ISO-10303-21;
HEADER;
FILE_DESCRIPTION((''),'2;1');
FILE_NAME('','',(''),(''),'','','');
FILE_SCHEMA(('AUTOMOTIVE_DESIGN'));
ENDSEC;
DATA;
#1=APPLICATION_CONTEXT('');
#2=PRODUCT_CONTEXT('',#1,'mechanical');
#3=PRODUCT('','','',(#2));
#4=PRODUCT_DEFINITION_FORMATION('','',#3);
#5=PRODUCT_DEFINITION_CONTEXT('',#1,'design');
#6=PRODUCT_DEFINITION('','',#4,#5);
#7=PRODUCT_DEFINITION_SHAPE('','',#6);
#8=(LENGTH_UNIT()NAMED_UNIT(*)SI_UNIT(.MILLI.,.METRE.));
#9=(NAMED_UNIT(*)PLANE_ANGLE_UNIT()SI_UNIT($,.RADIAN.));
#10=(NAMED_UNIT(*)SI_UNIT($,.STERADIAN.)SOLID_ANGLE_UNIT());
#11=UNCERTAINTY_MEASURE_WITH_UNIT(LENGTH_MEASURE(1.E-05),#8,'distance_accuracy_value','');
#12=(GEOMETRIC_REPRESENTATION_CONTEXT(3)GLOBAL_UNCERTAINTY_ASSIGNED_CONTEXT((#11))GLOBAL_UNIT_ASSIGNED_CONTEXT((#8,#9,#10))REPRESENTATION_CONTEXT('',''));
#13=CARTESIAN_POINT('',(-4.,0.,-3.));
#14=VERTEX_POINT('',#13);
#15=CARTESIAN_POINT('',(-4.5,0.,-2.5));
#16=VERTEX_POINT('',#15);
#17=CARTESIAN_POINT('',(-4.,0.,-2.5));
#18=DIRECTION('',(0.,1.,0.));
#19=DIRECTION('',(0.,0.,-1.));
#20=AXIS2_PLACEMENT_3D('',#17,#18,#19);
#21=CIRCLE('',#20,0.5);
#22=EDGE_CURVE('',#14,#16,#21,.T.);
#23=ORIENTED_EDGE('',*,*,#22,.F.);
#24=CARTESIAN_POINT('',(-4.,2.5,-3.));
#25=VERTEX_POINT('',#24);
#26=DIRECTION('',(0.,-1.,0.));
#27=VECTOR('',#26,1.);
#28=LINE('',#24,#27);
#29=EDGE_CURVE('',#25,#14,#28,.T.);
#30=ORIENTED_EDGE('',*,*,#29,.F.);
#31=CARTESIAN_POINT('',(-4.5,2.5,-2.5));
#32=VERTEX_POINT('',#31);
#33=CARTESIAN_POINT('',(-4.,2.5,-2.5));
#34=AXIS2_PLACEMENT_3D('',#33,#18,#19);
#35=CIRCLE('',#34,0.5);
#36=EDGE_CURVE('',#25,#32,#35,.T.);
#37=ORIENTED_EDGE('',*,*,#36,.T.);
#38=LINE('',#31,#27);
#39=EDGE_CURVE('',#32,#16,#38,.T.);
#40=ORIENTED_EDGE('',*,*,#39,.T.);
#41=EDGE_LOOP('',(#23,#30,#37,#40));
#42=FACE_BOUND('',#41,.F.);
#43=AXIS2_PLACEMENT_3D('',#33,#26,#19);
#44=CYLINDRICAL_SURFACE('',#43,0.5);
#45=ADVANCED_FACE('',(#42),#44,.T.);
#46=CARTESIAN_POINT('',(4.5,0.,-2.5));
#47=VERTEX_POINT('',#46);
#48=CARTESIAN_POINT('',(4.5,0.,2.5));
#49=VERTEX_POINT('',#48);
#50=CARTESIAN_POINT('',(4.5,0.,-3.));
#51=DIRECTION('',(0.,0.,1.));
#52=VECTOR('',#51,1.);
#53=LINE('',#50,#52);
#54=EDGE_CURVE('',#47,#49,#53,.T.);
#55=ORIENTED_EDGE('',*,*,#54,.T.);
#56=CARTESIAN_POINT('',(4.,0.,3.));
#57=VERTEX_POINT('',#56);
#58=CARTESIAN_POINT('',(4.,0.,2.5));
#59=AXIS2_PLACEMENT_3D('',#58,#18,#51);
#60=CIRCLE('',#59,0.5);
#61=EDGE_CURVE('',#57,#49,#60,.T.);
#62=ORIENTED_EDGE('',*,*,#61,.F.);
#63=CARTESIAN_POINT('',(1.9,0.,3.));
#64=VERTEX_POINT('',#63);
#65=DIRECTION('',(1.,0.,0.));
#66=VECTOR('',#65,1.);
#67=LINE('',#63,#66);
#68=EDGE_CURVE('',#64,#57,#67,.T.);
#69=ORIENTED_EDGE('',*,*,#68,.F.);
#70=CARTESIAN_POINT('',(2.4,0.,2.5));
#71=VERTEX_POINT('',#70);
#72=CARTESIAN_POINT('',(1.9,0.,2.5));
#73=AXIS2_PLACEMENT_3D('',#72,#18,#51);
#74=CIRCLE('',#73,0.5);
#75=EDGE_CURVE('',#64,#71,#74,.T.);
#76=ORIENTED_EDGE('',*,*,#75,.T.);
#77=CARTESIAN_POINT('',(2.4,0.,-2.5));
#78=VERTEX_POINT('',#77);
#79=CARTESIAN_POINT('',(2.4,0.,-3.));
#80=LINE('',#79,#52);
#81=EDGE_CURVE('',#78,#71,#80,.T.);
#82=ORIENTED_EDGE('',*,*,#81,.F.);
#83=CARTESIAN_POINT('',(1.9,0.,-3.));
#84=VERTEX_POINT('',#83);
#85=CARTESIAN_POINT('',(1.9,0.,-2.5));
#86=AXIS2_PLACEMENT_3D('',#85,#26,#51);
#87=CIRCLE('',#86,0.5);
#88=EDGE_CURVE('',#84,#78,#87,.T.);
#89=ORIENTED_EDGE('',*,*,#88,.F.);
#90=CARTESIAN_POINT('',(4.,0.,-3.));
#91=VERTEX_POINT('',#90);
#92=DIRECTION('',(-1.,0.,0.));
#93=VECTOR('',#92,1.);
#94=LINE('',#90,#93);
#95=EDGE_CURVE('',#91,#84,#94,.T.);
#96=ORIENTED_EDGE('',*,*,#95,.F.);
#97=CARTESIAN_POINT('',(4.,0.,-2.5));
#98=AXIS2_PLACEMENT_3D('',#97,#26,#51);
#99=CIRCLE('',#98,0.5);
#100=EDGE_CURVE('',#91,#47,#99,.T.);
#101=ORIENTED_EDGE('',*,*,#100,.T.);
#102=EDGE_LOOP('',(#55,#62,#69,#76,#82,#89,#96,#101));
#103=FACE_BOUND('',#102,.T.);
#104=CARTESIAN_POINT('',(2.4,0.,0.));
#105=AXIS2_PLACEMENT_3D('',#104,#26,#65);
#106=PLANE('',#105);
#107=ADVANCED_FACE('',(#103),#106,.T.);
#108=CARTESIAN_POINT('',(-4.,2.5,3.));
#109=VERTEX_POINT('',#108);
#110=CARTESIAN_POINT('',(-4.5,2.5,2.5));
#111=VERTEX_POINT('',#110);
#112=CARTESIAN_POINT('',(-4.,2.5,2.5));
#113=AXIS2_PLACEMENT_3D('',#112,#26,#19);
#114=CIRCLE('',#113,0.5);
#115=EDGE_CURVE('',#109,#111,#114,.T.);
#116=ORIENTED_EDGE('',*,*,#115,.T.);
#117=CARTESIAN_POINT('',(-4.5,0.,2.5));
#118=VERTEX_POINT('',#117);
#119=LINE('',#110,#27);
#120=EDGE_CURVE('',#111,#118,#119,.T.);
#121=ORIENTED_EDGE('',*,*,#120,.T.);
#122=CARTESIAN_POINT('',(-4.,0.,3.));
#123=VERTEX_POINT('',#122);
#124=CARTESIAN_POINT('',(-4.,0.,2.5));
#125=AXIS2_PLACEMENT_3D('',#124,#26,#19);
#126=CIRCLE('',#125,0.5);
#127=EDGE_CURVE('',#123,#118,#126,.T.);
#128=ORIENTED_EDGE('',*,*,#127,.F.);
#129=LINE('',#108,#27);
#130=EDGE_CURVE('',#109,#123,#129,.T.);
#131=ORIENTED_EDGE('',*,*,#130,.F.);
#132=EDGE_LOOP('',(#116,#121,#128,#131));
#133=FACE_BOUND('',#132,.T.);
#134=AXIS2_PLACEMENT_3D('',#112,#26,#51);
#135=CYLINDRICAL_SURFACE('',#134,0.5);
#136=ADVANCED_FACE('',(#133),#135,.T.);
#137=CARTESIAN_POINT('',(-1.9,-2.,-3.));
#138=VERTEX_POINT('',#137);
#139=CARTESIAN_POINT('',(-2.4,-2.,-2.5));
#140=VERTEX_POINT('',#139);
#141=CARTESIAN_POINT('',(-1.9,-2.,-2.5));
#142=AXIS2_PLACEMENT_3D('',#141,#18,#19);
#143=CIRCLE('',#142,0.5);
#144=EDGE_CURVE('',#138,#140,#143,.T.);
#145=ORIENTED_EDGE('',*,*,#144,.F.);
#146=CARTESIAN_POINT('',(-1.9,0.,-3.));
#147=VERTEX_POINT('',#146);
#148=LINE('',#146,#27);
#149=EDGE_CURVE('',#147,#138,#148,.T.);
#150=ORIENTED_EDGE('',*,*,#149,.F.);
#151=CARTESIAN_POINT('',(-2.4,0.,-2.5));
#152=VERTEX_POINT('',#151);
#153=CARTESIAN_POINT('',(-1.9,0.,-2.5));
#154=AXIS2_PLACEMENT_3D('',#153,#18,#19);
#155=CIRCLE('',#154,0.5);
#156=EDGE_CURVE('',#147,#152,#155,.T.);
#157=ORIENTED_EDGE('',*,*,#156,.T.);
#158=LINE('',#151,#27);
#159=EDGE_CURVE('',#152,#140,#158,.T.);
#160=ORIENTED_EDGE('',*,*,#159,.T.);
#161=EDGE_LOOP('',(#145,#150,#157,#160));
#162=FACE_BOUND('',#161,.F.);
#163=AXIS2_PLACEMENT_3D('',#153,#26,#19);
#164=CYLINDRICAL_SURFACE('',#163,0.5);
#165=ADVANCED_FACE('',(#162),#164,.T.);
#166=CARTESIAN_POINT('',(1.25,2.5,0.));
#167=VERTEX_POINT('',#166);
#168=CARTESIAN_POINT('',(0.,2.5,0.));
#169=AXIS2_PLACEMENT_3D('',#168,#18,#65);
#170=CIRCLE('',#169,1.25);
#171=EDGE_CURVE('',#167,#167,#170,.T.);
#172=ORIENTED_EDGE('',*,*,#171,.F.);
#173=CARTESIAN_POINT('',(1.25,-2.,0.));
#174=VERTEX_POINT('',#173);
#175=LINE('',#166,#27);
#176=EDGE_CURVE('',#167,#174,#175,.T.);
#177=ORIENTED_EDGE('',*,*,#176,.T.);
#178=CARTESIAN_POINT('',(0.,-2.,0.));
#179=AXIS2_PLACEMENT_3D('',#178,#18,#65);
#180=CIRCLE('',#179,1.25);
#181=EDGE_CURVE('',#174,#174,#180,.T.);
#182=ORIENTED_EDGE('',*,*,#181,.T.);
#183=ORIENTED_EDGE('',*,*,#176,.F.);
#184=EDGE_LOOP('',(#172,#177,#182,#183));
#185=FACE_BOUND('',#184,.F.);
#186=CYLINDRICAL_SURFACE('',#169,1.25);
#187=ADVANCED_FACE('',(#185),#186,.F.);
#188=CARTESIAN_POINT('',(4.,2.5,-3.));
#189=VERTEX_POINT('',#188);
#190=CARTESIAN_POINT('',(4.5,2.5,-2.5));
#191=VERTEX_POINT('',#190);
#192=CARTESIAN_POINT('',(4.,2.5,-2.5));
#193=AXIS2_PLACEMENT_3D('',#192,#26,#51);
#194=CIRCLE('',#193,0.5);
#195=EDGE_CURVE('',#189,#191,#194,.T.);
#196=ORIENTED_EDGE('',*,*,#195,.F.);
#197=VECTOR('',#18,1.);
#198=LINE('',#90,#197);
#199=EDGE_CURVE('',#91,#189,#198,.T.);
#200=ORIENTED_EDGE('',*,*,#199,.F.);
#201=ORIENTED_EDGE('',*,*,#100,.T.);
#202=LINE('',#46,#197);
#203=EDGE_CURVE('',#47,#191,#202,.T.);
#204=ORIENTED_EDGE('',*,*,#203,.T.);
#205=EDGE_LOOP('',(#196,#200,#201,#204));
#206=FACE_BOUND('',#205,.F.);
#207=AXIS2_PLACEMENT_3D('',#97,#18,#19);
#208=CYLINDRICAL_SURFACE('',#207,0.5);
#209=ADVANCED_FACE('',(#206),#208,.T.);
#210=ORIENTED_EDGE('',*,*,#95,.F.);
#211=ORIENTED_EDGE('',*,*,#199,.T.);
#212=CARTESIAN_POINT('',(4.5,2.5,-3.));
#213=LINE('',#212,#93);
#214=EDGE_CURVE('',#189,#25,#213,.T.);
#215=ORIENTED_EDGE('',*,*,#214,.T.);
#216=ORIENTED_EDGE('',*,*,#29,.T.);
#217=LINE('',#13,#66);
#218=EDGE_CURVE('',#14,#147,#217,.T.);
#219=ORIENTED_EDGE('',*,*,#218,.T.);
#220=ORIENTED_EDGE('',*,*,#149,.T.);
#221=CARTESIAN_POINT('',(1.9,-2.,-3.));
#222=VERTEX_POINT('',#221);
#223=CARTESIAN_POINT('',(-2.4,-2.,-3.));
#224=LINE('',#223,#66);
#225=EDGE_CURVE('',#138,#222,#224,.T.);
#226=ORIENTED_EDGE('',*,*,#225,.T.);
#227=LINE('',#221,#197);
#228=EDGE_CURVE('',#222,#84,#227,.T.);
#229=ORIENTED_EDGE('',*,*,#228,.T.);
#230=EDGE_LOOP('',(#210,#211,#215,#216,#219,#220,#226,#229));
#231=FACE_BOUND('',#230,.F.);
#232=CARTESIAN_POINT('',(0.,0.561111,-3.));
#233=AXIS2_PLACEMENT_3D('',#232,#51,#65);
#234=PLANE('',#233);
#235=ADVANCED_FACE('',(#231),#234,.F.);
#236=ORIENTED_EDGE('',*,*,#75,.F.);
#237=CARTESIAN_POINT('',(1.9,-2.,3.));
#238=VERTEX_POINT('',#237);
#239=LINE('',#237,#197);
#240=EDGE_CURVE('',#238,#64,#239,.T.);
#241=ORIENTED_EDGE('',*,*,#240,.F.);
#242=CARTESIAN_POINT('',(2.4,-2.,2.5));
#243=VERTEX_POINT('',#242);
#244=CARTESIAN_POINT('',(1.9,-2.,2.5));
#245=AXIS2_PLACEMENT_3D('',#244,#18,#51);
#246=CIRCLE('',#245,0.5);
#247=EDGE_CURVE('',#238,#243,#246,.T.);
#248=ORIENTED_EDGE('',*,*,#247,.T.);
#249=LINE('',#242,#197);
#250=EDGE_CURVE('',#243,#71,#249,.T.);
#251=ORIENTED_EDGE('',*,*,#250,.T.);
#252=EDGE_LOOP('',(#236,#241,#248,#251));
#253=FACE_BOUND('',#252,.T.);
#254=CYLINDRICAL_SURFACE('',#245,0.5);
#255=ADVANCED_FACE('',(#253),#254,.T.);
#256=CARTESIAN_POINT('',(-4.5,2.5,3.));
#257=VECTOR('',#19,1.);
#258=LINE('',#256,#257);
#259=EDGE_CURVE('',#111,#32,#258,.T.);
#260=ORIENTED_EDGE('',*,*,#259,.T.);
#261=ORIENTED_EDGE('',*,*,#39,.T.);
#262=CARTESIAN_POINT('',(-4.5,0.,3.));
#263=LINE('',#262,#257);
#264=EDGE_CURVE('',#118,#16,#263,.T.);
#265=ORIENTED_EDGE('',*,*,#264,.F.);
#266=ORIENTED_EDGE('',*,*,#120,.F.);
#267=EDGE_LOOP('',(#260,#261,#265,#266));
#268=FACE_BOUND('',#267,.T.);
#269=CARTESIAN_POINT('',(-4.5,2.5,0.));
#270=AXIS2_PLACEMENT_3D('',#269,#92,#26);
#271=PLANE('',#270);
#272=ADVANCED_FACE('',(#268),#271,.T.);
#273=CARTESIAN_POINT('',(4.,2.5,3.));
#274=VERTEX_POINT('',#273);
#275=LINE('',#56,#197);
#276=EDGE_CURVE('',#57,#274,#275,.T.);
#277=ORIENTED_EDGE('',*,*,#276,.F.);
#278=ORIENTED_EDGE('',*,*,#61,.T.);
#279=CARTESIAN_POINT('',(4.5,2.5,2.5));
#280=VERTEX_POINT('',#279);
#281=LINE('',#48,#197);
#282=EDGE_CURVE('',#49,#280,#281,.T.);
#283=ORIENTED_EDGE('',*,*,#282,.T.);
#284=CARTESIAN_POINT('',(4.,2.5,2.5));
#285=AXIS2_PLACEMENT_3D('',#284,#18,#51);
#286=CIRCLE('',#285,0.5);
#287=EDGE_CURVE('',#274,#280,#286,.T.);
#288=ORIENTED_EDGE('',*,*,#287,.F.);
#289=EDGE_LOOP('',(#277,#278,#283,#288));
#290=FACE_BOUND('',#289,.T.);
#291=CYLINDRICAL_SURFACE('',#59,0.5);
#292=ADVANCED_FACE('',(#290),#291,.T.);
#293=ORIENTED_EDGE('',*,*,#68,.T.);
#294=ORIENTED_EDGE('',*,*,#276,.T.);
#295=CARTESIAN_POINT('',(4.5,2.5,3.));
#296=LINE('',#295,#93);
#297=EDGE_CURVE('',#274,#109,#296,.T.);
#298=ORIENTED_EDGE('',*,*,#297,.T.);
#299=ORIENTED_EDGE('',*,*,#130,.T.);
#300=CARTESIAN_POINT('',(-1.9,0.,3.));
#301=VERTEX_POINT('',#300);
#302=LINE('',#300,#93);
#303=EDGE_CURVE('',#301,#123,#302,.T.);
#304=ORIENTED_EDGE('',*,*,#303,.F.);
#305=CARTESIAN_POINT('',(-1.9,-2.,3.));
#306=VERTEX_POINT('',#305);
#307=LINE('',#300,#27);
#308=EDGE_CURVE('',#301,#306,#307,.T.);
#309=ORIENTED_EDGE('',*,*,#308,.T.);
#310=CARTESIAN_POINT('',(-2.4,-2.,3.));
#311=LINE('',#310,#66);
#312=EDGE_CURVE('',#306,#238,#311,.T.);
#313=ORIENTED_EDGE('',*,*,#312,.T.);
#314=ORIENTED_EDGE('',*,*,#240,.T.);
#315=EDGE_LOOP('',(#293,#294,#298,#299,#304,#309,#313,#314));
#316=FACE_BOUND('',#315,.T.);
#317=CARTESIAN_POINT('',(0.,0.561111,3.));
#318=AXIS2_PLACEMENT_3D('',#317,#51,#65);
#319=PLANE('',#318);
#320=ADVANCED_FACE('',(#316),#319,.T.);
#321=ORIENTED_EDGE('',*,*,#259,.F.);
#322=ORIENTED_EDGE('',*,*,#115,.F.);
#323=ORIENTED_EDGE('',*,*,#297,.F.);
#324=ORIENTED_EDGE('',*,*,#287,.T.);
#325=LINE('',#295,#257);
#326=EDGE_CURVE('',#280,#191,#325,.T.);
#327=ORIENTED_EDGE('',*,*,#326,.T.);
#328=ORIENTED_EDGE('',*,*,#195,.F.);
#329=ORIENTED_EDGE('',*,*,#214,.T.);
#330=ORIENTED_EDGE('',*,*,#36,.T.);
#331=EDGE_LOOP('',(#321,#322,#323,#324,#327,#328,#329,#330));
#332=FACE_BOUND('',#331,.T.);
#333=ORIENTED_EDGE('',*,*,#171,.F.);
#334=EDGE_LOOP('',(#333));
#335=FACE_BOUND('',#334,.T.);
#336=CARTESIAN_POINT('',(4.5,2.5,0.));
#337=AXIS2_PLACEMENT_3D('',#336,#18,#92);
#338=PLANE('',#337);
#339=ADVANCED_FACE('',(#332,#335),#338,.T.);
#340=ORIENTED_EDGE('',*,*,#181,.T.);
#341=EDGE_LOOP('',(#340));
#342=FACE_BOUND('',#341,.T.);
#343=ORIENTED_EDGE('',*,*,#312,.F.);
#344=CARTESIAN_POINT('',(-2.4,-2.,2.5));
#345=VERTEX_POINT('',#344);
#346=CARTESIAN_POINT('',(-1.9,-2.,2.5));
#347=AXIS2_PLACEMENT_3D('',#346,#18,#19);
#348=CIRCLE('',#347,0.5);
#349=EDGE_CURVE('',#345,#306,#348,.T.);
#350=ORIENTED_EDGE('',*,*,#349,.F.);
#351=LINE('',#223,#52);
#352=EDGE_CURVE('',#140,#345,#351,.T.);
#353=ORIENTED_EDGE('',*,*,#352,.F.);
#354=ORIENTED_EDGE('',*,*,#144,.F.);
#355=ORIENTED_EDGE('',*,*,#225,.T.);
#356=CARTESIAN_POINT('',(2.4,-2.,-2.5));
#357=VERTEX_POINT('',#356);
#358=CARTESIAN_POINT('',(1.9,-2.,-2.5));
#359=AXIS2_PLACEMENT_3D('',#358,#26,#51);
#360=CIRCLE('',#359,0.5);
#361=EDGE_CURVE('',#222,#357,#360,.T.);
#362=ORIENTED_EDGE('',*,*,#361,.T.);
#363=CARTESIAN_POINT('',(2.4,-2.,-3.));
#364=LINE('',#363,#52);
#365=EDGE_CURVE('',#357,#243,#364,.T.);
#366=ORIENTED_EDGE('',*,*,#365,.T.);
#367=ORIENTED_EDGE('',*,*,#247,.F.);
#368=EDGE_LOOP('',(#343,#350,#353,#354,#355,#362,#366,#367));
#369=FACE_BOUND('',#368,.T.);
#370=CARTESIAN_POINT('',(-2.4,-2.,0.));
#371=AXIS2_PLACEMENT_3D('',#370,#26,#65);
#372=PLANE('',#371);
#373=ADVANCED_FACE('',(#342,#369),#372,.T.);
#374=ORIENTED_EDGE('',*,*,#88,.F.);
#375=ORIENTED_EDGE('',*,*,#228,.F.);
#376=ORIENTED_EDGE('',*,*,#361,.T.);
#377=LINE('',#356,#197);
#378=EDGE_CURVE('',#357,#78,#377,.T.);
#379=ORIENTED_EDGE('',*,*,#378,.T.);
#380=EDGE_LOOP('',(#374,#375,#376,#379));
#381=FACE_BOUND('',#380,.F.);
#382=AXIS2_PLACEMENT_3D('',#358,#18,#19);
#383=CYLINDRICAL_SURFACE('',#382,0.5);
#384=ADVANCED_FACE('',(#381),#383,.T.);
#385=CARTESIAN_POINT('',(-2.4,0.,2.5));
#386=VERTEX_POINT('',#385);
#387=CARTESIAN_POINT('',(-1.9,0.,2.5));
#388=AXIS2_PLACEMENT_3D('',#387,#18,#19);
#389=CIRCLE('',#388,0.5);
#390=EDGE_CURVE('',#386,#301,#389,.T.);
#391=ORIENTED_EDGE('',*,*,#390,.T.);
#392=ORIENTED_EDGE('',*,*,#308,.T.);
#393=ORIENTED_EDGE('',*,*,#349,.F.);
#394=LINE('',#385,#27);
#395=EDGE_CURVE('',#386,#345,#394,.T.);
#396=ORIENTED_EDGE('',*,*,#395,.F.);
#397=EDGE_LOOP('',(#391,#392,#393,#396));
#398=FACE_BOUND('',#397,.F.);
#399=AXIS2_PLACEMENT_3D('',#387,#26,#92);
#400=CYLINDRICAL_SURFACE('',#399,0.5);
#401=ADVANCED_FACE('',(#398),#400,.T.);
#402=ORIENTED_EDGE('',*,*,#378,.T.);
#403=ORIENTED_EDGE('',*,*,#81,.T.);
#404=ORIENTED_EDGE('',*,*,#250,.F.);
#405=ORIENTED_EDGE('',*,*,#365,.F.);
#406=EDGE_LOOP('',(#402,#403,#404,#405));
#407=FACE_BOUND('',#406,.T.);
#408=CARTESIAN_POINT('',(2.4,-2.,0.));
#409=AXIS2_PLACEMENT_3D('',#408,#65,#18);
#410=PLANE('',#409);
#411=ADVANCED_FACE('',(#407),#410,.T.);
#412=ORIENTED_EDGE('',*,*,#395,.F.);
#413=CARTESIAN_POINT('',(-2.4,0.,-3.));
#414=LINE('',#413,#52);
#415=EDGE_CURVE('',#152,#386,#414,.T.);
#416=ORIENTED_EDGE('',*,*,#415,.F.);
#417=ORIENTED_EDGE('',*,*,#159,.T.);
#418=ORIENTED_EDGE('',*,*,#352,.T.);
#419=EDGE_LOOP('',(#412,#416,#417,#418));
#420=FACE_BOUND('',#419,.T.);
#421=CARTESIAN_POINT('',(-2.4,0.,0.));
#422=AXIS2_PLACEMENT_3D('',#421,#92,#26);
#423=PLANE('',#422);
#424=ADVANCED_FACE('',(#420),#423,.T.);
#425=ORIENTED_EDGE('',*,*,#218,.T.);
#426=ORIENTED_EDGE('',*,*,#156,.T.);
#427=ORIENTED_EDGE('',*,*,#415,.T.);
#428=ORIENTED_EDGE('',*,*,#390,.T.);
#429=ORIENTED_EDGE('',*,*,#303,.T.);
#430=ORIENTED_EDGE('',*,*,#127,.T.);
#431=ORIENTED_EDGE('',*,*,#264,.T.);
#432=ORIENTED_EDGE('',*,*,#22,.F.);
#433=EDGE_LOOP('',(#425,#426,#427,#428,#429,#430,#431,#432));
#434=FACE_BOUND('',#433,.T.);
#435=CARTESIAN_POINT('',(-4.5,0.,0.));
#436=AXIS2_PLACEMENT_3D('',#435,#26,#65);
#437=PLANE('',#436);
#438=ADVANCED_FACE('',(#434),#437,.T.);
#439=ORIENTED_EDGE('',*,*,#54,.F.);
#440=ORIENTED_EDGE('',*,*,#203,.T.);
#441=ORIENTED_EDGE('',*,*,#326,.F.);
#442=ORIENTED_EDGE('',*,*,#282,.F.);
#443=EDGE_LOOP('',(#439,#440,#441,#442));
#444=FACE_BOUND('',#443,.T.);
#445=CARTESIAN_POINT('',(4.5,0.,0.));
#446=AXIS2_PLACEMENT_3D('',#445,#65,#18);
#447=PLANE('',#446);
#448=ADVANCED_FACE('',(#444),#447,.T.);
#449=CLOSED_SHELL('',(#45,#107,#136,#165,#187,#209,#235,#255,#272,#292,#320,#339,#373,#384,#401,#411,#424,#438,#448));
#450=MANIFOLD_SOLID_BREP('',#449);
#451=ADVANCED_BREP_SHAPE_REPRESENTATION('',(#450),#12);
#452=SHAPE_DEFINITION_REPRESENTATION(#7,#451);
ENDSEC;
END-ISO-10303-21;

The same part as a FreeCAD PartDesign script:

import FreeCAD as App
import Part
import Sketcher
Q = App.Units.Quantity


def edges_at(feature, points):
    """Names of the edges that pass closest to the given points."""
    edges = feature.Shape.Edges
    near = lambda p: min(range(len(edges)), key=lambda i: edges[i].distToShape(Part.Vertex(*p))[0])
    return sorted({f"Edge{near(p) + 1}" for p in points})

doc = App.newDocument("Part")
body = doc.addObject("PartDesign::Body", "Body")

sketch1 = body.newObject("Sketcher::SketchObject", "Sketch")
sketch1.AttachmentSupport = (doc.getObject("XY_Plane"), [""])
sketch1.MapMode = "FlatFace"
sketch1.addGeometry([
    Part.LineSegment(App.Vector(-4.5, 0, 0), App.Vector(-2.4, 0, 0)),
    Part.LineSegment(App.Vector(-2.4, 0, 0), App.Vector(-2.4, -2, 0)),
    Part.LineSegment(App.Vector(-2.4, -2, 0), App.Vector(2.4, -2, 0)),
    Part.LineSegment(App.Vector(2.4, -2, 0), App.Vector(2.4, 0, 0)),
    Part.LineSegment(App.Vector(2.4, 0, 0), App.Vector(4.5, 0, 0)),
    Part.LineSegment(App.Vector(4.5, 0, 0), App.Vector(4.5, 2.5, 0)),
    Part.LineSegment(App.Vector(4.5, 2.5, 0), App.Vector(-4.5, 2.5, 0)),
    Part.LineSegment(App.Vector(-4.5, 2.5, 0), App.Vector(-4.5, 0, 0)),
], False)
sketch1.addConstraint([
    Sketcher.Constraint("Coincident", 0, 2, 1, 1),
    Sketcher.Constraint("Coincident", 1, 2, 2, 1),
    Sketcher.Constraint("Coincident", 2, 2, 3, 1),
    Sketcher.Constraint("Coincident", 3, 2, 4, 1),
    Sketcher.Constraint("Coincident", 4, 2, 5, 1),
    Sketcher.Constraint("Coincident", 5, 2, 6, 1),
    Sketcher.Constraint("Coincident", 6, 2, 7, 1),
    Sketcher.Constraint("Coincident", 7, 2, 0, 1),
    Sketcher.Constraint("Horizontal", 0),
    Sketcher.Constraint("Vertical", 1),
    Sketcher.Constraint("Horizontal", 2),
    Sketcher.Constraint("Vertical", 3),
    Sketcher.Constraint("Horizontal", 4),
    Sketcher.Constraint("Vertical", 5),
    Sketcher.Constraint("Horizontal", 6),
    Sketcher.Constraint("Vertical", 7),
    Sketcher.Constraint("Symmetric", 0, 2, 3, 2, -1, 1),
    Sketcher.Constraint("Symmetric", 4, 2, 7, 2, -2),
    Sketcher.Constraint("DistanceX", 6, 2, 6, 1, Q("9 mm")),
    Sketcher.Constraint("DistanceY", 1, 2, 1, 1, Q("2 mm")),
    Sketcher.Constraint("DistanceX", 0, 1, 0, 2, Q("2.1 mm")),
    Sketcher.Constraint("DistanceY", 5, 1, 5, 2, Q("2.5 mm")),
])
pad1 = body.newObject("PartDesign::Pad", "Pad")
pad1.Profile = sketch1
pad1.Length = 6
pad1.Midplane = True

sketch2 = body.newObject("Sketcher::SketchObject", "Sketch001")
sketch2.AttachmentSupport = (doc.getObject("XZ_Plane"), [""])
sketch2.MapMode = "FlatFace"
sketch2.AttachmentOffset = App.Placement(App.Vector(0, 0, -2.5), App.Rotation())
sketch2.addGeometry(Part.Circle(App.Vector(0, 0, 0), App.Vector(0, 0, 1), 1.25), False)
sketch2.addConstraint([
    Sketcher.Constraint("Coincident", 0, 3, -1, 1),
    Sketcher.Constraint("Diameter", 0, Q("2.5 mm")),
])
pocket1 = body.newObject("PartDesign::Pocket", "Pocket")
pocket1.Profile = sketch2
pocket1.Type = "ThroughAll"
pocket1.Reversed = True
doc.recompute()

fillet = body.newObject("PartDesign::Fillet", "Fillet")
fillet.Base = (pocket1, edges_at(pocket1, [
    (-4.5, 1.25, -3),
    (4.5, 1.25, -3),
    (-4.5, 1.25, 3),
    (-2.4, -1, 3),
    (2.4, -1, 3),
    (4.5, 1.25, 3),
    (2.4, -1, -3),
    (-2.4, -1, -3),
]))
fillet.Radius = 0.5

doc.recompute()
